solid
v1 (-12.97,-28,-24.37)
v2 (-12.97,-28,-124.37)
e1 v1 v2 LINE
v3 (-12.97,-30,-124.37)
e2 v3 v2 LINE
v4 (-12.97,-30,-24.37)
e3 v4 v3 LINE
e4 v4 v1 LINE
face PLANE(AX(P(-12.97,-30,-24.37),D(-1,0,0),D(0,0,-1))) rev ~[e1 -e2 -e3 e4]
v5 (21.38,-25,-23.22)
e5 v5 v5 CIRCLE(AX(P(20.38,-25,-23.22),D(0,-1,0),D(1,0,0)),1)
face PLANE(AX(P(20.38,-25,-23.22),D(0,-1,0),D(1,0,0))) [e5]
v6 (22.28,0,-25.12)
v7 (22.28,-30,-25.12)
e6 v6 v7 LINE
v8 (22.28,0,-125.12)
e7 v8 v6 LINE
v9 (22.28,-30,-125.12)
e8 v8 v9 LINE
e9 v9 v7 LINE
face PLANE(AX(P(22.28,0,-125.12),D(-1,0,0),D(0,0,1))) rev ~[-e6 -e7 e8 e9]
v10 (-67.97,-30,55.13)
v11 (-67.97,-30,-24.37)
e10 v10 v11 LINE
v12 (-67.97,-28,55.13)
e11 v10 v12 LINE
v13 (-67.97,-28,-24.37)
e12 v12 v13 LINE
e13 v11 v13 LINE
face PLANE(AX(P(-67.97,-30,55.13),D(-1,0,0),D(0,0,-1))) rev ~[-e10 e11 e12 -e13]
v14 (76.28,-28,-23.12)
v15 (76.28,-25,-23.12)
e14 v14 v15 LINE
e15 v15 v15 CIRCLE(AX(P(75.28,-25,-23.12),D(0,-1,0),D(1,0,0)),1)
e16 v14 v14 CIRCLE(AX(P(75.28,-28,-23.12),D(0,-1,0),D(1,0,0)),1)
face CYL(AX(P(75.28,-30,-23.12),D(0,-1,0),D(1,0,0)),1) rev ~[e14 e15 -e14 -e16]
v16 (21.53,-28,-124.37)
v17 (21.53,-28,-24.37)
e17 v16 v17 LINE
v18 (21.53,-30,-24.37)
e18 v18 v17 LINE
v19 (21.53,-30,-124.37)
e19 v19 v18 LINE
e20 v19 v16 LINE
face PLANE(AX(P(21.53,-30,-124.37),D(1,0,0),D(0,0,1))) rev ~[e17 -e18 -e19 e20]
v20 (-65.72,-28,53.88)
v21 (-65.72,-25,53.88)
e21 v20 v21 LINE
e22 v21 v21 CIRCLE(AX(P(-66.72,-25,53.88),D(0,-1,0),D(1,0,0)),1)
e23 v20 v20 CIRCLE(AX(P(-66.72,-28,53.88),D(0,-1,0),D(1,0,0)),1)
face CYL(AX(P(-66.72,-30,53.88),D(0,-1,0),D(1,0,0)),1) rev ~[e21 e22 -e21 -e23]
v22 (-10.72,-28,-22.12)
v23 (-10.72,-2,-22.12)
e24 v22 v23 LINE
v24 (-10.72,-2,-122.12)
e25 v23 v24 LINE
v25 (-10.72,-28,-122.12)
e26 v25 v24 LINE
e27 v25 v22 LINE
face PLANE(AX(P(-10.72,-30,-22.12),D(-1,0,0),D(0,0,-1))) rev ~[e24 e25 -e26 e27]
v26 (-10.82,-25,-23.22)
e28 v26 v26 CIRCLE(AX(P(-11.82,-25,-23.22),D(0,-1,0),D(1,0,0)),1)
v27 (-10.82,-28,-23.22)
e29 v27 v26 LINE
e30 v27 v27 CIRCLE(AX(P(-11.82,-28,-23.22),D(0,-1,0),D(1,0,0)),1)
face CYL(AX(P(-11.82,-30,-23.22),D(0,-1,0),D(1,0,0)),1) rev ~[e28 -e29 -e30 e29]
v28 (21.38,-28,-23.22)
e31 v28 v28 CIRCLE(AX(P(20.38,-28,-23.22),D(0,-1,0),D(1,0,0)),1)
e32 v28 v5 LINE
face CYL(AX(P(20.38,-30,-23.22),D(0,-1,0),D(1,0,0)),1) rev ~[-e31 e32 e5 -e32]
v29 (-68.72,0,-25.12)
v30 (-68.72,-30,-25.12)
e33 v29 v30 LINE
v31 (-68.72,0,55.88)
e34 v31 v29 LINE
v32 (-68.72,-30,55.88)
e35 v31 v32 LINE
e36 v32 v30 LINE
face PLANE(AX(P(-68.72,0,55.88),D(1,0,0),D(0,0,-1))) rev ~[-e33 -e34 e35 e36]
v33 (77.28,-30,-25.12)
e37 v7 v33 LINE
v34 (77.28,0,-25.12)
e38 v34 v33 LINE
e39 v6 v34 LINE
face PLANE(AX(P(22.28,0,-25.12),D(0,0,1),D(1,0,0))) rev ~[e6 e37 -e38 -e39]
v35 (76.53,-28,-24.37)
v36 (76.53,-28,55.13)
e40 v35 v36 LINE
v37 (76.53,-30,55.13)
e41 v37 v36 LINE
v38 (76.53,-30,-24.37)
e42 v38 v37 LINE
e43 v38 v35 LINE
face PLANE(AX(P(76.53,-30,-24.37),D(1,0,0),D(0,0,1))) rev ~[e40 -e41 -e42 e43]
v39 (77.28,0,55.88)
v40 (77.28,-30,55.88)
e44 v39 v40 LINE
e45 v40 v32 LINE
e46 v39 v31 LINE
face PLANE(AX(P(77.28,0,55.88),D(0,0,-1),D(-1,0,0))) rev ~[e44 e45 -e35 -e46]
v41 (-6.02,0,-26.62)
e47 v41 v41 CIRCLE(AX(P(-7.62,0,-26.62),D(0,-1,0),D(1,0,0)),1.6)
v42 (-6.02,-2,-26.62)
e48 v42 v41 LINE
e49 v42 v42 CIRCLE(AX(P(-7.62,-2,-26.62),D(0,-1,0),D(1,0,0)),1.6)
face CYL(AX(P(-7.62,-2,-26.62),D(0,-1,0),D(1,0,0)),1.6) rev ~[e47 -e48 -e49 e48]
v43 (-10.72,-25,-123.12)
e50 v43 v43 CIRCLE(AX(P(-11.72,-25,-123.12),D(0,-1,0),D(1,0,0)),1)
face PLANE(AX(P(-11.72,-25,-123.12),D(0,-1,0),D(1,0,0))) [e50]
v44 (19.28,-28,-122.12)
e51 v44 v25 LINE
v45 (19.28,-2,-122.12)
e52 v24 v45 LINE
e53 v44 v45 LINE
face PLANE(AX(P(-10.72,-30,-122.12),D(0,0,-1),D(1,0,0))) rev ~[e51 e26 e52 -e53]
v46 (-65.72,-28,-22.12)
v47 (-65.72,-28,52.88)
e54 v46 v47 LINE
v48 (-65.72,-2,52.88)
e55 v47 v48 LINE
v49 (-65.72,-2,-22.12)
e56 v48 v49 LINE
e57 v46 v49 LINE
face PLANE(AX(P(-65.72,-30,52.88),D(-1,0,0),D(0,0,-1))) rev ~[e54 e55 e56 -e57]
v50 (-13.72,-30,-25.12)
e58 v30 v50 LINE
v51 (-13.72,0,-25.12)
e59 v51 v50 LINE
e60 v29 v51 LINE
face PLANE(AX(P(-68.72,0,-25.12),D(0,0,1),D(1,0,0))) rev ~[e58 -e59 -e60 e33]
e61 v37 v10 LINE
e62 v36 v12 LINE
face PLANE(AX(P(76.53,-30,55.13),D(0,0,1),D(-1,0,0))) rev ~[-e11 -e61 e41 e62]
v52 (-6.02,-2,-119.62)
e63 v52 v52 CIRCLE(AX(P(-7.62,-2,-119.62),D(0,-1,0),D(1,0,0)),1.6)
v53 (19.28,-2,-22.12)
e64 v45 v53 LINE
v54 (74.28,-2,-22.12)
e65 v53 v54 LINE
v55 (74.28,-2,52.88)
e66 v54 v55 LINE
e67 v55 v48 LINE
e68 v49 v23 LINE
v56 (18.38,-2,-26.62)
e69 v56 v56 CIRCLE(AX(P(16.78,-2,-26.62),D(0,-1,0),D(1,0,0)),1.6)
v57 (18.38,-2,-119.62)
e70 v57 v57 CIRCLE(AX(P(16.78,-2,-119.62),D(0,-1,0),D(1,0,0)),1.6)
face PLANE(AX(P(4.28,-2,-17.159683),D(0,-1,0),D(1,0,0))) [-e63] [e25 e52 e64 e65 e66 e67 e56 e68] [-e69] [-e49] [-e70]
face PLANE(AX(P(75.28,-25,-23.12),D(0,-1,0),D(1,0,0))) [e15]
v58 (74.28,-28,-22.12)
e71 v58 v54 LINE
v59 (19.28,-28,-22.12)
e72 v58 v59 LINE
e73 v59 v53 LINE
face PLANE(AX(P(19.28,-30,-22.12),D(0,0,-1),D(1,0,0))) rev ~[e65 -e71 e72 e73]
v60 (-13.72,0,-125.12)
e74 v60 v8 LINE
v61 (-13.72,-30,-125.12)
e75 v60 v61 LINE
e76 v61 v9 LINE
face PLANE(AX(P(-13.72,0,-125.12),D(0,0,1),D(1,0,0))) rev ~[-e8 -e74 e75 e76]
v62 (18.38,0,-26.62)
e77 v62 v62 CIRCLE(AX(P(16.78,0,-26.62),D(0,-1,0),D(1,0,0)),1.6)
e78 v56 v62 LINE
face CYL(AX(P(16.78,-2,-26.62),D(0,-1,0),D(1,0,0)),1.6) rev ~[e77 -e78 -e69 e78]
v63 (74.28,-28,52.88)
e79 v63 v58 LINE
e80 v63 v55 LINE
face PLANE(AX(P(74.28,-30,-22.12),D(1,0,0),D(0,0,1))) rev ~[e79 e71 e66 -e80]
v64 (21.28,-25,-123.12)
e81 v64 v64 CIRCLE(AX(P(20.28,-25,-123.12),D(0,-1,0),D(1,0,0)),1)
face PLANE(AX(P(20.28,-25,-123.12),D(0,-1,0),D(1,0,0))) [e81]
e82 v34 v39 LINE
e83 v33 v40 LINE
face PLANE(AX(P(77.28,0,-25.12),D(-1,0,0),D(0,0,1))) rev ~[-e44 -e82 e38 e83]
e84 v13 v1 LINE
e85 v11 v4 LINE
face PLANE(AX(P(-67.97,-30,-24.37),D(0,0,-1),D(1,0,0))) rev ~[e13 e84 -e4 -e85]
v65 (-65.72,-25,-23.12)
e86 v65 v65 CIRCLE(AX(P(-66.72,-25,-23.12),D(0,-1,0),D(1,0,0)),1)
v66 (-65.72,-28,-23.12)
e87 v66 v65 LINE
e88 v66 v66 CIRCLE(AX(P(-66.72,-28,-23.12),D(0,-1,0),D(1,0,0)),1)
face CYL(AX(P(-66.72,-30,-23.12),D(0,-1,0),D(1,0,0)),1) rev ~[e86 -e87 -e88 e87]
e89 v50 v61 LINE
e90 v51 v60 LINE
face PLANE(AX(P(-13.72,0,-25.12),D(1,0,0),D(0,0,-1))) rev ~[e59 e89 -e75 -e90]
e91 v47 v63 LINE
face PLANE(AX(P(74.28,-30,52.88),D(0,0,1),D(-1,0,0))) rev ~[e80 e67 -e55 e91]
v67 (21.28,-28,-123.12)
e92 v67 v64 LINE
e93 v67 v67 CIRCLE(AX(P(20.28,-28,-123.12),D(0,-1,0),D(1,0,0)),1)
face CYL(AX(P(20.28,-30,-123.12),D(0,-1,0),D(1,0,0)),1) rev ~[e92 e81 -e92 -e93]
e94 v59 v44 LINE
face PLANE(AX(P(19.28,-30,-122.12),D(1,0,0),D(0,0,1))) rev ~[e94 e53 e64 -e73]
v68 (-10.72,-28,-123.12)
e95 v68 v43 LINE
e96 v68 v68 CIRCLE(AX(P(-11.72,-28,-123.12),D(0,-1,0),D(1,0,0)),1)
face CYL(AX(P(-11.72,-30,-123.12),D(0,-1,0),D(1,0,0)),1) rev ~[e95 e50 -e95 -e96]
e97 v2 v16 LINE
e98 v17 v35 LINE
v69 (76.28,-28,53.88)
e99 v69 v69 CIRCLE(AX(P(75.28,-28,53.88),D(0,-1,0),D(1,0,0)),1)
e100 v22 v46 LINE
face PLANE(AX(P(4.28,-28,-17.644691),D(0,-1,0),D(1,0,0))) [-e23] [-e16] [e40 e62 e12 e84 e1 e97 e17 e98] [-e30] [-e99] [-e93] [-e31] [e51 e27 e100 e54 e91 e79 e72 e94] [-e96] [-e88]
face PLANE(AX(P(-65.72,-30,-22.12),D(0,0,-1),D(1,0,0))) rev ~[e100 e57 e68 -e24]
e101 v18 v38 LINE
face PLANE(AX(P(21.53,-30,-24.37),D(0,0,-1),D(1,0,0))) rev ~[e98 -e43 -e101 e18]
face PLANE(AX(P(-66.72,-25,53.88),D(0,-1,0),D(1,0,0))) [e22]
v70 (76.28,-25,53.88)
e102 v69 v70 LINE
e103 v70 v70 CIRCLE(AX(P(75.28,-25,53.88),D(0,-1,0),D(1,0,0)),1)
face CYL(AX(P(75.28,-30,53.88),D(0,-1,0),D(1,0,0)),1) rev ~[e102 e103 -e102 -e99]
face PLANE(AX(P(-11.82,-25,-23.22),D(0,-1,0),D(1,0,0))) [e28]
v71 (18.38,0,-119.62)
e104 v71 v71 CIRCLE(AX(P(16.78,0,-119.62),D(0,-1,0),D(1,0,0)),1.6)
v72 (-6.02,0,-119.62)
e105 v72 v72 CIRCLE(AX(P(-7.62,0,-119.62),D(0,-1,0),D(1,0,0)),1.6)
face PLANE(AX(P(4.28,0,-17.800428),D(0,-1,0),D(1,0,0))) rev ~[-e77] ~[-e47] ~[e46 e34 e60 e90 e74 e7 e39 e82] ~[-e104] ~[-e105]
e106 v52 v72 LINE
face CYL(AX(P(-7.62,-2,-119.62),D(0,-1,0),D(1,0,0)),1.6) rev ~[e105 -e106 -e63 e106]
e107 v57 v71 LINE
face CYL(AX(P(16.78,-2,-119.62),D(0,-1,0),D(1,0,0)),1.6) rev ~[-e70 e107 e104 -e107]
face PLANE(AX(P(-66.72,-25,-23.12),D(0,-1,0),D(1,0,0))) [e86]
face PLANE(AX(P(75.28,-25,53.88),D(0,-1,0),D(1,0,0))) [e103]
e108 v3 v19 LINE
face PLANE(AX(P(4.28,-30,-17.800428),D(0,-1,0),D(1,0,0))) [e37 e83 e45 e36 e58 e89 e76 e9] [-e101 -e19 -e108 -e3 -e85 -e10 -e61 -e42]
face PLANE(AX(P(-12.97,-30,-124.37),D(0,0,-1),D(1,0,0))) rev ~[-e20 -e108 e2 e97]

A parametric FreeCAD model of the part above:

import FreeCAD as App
import Part
import Sketcher
from FreeCAD import Vector


def add_polygon(sketch, points):
    """Adds a closed chain of lines whose ends are joined by coincident constraints."""
    first, n = sketch.GeometryCount, len(points)
    for a, b in zip(points, points[1:] + points[:1]):
        sketch.addGeometry(Part.LineSegment(App.Vector(*a, 0), App.Vector(*b, 0)), False)
    for i in range(n):
        sketch.addConstraint(Sketcher.Constraint("Coincident", first + i, 2, first + (i + 1) % n, 1))

doc = App.newDocument("Part")
body = doc.addObject("PartDesign::Body", "Body")

# Sketch on XZ plane
sketch1 = body.newObject("Sketcher::SketchObject", "Sketch")
sketch1.AttachmentSupport = (doc.getObject("XZ_Plane"), [""])
sketch1.MapMode = "FlatFace"
add_polygon(sketch1, [(-68.72, 55.88), (-68.72, -25.12), (-13.72, -25.12), (-13.72, -125.12), (22.28, -125.12), (22.28, -25.12), (77.28, -25.12), (77.28, 55.88)])  # lines 0-7
sketch1.addConstraint([
    Sketcher.Constraint("Vertical", 0),
    Sketcher.Constraint("Horizontal", 1),
    Sketcher.Constraint("Vertical", 2),
    Sketcher.Constraint("Horizontal", 3),
    Sketcher.Constraint("Vertical", 4),
    Sketcher.Constraint("Horizontal", 5),
    Sketcher.Constraint("Vertical", 6),
    Sketcher.Constraint("Horizontal", 7),
    Sketcher.Constraint("Horizontal", 1, 2, 4, 2),
    Sketcher.Constraint("Equal", 1, 5),
    Sketcher.Constraint("DistanceX", 1, 1, 1, 2, 55.0),
    Sketcher.Constraint("DistanceX", 3, 1, 3, 2, 36.0),
    Sketcher.Constraint("DistanceY", 0, 2, 0, 1, 81.0),
    Sketcher.Constraint("DistanceY", 2, 2, 2, 1, 100.0),
    Sketcher.Constraint("DistanceX", 0, 2, -1, 1, 68.72),
    Sketcher.Constraint("DistanceY", 0, 2, -1, 1, 25.12),
])
pad1 = body.newObject("PartDesign::Pad", "Pad")
pad1.Profile = sketch1
pad1.Length = 30

# Sketch on XZ plane
sketch2 = body.newObject("Sketcher::SketchObject", "Sketch001")
sketch2.AttachmentSupport = (doc.getObject("XZ_Plane"), [""])
sketch2.MapMode = "FlatFace"
sketch2.AttachmentOffset = App.Placement(Vector(0, 0, 30), App.Rotation())
add_polygon(sketch2, [(-65.72, 52.88), (-65.72, -22.12), (-10.72, -22.12), (-10.72, -122.12), (19.28, -122.12), (19.28, -22.12), (74.28, -22.12), (74.28, 52.88)])  # lines 0-7
sketch2.addConstraint([
    Sketcher.Constraint("Vertical", 0),
    Sketcher.Constraint("Horizontal", 1),
    Sketcher.Constraint("Vertical", 2),
    Sketcher.Constraint("Horizontal", 3),
    Sketcher.Constraint("Vertical", 4),
    Sketcher.Constraint("Horizontal", 5),
    Sketcher.Constraint("Vertical", 6),
    Sketcher.Constraint("Horizontal", 7),
    Sketcher.Constraint("Horizontal", 1, 2, 4, 2),
    Sketcher.Constraint("Equal", 1, 5),
    Sketcher.Constraint("DistanceX", 1, 1, 1, 2, 55.0),
    Sketcher.Constraint("DistanceX", 3, 1, 3, 2, 30.0),
    Sketcher.Constraint("DistanceY", 0, 2, 0, 1, 75.0),
    Sketcher.Constraint("DistanceY", 2, 2, 2, 1, 100.0),
    Sketcher.Constraint("DistanceX", 0, 2, -1, 1, 65.72),
    Sketcher.Constraint("DistanceY", 0, 2, -1, 1, 22.12),
])
pocket1 = body.newObject("PartDesign::Pocket", "Pocket")
pocket1.Profile = sketch2
pocket1.Length = 28

# Sketch on XZ plane
sketch3 = body.newObject("Sketcher::SketchObject", "Sketch002")
sketch3.AttachmentSupport = (doc.getObject("XZ_Plane"), [""])
sketch3.MapMode = "FlatFace"
sketch3.AttachmentOffset = App.Placement(Vector(0, 0, 30), App.Rotation())
sketch3.addGeometry([
    Part.Circle(Vector(-11.82, -23.22, 0), Vector(0, 0, 1), 1),  # 0
    Part.Circle(Vector(-11.72, -123.12, 0), Vector(0, 0, 1), 1),  # 1
    Part.Circle(Vector(20.38, -23.22, 0), Vector(0, 0, 1), 1),  # 2
    Part.Circle(Vector(20.28, -123.12, 0), Vector(0, 0, 1), 1),  # 3
    Part.Circle(Vector(-66.72, -23.12, 0), Vector(0, 0, 1), 1),  # 4
    Part.Circle(Vector(75.28, -23.12, 0), Vector(0, 0, 1), 1),  # 5
    Part.Circle(Vector(75.28, 53.88, 0), Vector(0, 0, 1), 1),  # 6
    Part.Circle(Vector(-66.72, 53.88, 0), Vector(0, 0, 1), 1),  # 7
], False)
sketch3.addConstraint([
    Sketcher.Constraint("Equal", 0, 1),
    Sketcher.Constraint("Equal", 1, 2),
    Sketcher.Constraint("Equal", 2, 3),
    Sketcher.Constraint("Equal", 3, 4),
    Sketcher.Constraint("Equal", 4, 5),
    Sketcher.Constraint("Equal", 5, 6),
    Sketcher.Constraint("Equal", 6, 7),
    Sketcher.Constraint("Horizontal", 0, 3, 2, 3),
    Sketcher.Constraint("Horizontal", 1, 3, 3, 3),
    Sketcher.Constraint("Horizontal", 4, 3, 5, 3),
    Sketcher.Constraint("Horizontal", 6, 3, 7, 3),
    Sketcher.Constraint("Vertical", 5, 3, 6, 3),
    Sketcher.Constraint("Vertical", 4, 3, 7, 3),
    Sketcher.Constraint("Diameter", 0, 2.0),
    Sketcher.Constraint("DistanceX", 1, 3, 3, 3, 32.0),
    Sketcher.Constraint("DistanceX", 4, 3, 1, 3, 55.0),
    Sketcher.Constraint("DistanceY", 1, 3, 4, 3, 100.0),
    Sketcher.Constraint("DistanceX", 3, 3, 5, 3, 55.0),
    Sketcher.Constraint("DistanceY", 5, 3, 6, 3, 77.0),
    Sketcher.Constraint("DistanceX", 0, 3, 1, 3, 0.1),
    Sketcher.Constraint("DistanceY", 1, 3, 0, 3, 99.9),
    Sketcher.Constraint("DistanceX", 0, 3, 2, 3, 32.2),
    Sketcher.Constraint("DistanceX", 0, 3, -1, 1, 11.82),
    Sketcher.Constraint("DistanceY", 0, 3, -1, 1, 23.22),
])
pocket2 = body.newObject("PartDesign::Pocket", "Pocket001")
pocket2.Profile = sketch3
pocket2.Length = 5

# Sketch on XZ plane
sketch4 = body.newObject("Sketcher::SketchObject", "Sketch003")
sketch4.AttachmentSupport = (doc.getObject("XZ_Plane"), [""])
sketch4.MapMode = "FlatFace"
sketch4.AttachmentOffset = App.Placement(Vector(0, 0, 2), App.Rotation())
sketch4.addGeometry([
    Part.Circle(Vector(-7.62, -119.62, 0), Vector(0, 0, 1), 1.6),
    Part.Circle(Vector(16.78, -119.62, 0), Vector(0, 0, 1), 1.6),
    Part.Circle(Vector(-7.62, -26.62, 0), Vector(0, 0, 1), 1.6),
    Part.Circle(Vector(16.78, -26.62, 0), Vector(0, 0, 1), 1.6),
], False)
sketch4.addConstraint([
    Sketcher.Constraint("Equal", 0, 1),
    Sketcher.Constraint("Equal", 1, 2),
    Sketcher.Constraint("Equal", 2, 3),
    Sketcher.Constraint("Horizontal", 0, 3, 1, 3),
    Sketcher.Constraint("Horizontal", 2, 3, 3, 3),
    Sketcher.Constraint("Vertical", 0, 3, 2, 3),
    Sketcher.Constraint("Vertical", 1, 3, 3, 3),
    Sketcher.Constraint("Diameter", 0, 3.2),
    Sketcher.Constraint("DistanceY", 0, 3, 2, 3, 93.0),
    Sketcher.Constraint("DistanceX", 0, 3, 1, 3, 24.4),
    Sketcher.Constraint("DistanceX", 0, 3, -1, 1, 7.62),
    Sketcher.Constraint("DistanceY", 0, 3, -1, 1, 119.62),
])
pocket3 = body.newObject("PartDesign::Pocket", "Pocket002")
pocket3.Profile = sketch4
pocket3.Length = 5

# Sketch on XZ plane
sketch5 = body.newObject("Sketcher::SketchObject", "Sketch004")
sketch5.AttachmentSupport = (doc.getObject("XZ_Plane"), [""])
sketch5.MapMode = "FlatFace"
sketch5.AttachmentOffset = App.Placement(Vector(0, 0, 30), App.Rotation())
add_polygon(sketch5, [(-67.97, 55.13), (-67.97, -24.37), (-12.97, -24.37), (-12.97, -124.37), (21.53, -124.37), (21.53, -24.37), (76.53, -24.37), (76.53, 55.13)])  # lines 0-7
sketch5.addConstraint([
    Sketcher.Constraint("Vertical", 0),
    Sketcher.Constraint("Horizontal", 1),
    Sketcher.Constraint("Vertical", 2),
    Sketcher.Constraint("Horizontal", 3),
    Sketcher.Constraint("Vertical", 4),
    Sketcher.Constraint("Horizontal", 5),
    Sketcher.Constraint("Vertical", 6),
    Sketcher.Constraint("Horizontal", 7),
    Sketcher.Constraint("Horizontal", 1, 2, 4, 2),
    Sketcher.Constraint("Equal", 1, 5),
    Sketcher.Constraint("DistanceX", 1, 1, 1, 2, 55.0),
    Sketcher.Constraint("DistanceY", 2, 2, 2, 1, 100.0),
    Sketcher.Constraint("DistanceX", 3, 1, 3, 2, 34.5),
    Sketcher.Constraint("DistanceY", 0, 2, 0, 1, 79.5),
    Sketcher.Constraint("DistanceX", 0, 2, -1, 1, 67.97),
    Sketcher.Constraint("DistanceY", 0, 2, -1, 1, 24.37),
])
pocket4 = body.newObject("PartDesign::Pocket", "Pocket003")
pocket4.Profile = sketch5
pocket4.Length = 2

doc.recompute()
